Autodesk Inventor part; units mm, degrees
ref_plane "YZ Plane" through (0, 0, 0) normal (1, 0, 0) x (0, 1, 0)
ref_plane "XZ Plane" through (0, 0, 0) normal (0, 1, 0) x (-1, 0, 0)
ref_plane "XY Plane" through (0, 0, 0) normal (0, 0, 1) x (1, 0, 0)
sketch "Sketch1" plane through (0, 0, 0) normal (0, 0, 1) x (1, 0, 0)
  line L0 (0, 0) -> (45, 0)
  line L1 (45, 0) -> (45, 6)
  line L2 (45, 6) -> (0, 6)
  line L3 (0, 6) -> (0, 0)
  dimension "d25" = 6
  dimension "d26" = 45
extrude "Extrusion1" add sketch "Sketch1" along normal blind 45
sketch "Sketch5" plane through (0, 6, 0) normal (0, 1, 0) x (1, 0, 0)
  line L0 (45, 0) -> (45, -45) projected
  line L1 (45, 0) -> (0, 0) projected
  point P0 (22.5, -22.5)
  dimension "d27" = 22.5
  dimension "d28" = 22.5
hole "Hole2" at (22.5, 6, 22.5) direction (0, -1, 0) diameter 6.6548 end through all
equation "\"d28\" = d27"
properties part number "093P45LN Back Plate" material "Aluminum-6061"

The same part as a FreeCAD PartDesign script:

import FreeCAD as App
import Part
import Sketcher
from FreeCAD import Vector

doc = App.newDocument("Part")
body = doc.addObject("PartDesign::Body", "Body")

sketch1 = doc.addObject("Sketcher::SketchObject", "Sketch")
body.addObject(sketch1)
sketch1.AttachmentSupport = (doc.XY_Plane, [""])
sketch1.MapMode = "FlatFace"
sketch1.addGeometry(Part.LineSegment(Vector(0, 6, 0), Vector(0, 0, 0)), False)
sketch1.addGeometry(Part.LineSegment(Vector(0, 0, 0), Vector(45, 0, 0)), False)
sketch1.addGeometry(Part.LineSegment(Vector(45, 0, 0), Vector(45, 6, 0)), False)
sketch1.addGeometry(Part.LineSegment(Vector(45, 6, 0), Vector(0, 6, 0)), False)
sketch1.addConstraint(Sketcher.Constraint("Coincident", 0, 2, 1, 1))
sketch1.addConstraint(Sketcher.Constraint("Coincident", 1, 2, 2, 1))
sketch1.addConstraint(Sketcher.Constraint("Coincident", 2, 2, 3, 1))
sketch1.addConstraint(Sketcher.Constraint("Coincident", 3, 2, 0, 1))
sketch1.addConstraint(Sketcher.Constraint("Vertical", 0))
sketch1.addConstraint(Sketcher.Constraint("Horizontal", 1))
sketch1.addConstraint(Sketcher.Constraint("Vertical", 2))
sketch1.addConstraint(Sketcher.Constraint("Horizontal", 3))
sketch1.addConstraint(Sketcher.Constraint("Coincident", 0, 2, -1, 1))
sketch1.addConstraint(Sketcher.Constraint("DistanceX", 1, 1, 1, 2, 45.0))
sketch1.addConstraint(Sketcher.Constraint("DistanceY", 0, 2, 0, 1, 6.0))
pad1 = doc.addObject("PartDesign::Pad", "Pad")
body.addObject(pad1)
pad1.Profile = sketch1
pad1.Length = 45

sketch2 = doc.addObject("Sketcher::SketchObject", "Sketch001")
body.addObject(sketch2)
sketch2.AttachmentSupport = (doc.XZ_Plane, [""])
sketch2.MapMode = "FlatFace"
sketch2.AttachmentOffset = App.Placement(Vector(0, 0, -6), App.Rotation())
sketch2.addGeometry(Part.Circle(Vector(22.5, 22.5, 0), Vector(0, 0, 1), 3.3274), False)
sketch2.addConstraint(Sketcher.Constraint("Diameter", 0, 6.6548))
sketch2.addConstraint(Sketcher.Constraint("DistanceX", -1, 1, 0, 3, 22.5))
sketch2.addConstraint(Sketcher.Constraint("DistanceY", -1, 1, 0, 3, 22.5))
doc.recompute()
hole = doc.addObject("PartDesign::Hole", "Hole")
body.addObject(hole)
hole.Profile = sketch2
hole.ThreadType = "None"
hole.Diameter = 6.6548
hole.DepthType = "ThroughAll"
hole.Reversed = True

doc.recompute()
